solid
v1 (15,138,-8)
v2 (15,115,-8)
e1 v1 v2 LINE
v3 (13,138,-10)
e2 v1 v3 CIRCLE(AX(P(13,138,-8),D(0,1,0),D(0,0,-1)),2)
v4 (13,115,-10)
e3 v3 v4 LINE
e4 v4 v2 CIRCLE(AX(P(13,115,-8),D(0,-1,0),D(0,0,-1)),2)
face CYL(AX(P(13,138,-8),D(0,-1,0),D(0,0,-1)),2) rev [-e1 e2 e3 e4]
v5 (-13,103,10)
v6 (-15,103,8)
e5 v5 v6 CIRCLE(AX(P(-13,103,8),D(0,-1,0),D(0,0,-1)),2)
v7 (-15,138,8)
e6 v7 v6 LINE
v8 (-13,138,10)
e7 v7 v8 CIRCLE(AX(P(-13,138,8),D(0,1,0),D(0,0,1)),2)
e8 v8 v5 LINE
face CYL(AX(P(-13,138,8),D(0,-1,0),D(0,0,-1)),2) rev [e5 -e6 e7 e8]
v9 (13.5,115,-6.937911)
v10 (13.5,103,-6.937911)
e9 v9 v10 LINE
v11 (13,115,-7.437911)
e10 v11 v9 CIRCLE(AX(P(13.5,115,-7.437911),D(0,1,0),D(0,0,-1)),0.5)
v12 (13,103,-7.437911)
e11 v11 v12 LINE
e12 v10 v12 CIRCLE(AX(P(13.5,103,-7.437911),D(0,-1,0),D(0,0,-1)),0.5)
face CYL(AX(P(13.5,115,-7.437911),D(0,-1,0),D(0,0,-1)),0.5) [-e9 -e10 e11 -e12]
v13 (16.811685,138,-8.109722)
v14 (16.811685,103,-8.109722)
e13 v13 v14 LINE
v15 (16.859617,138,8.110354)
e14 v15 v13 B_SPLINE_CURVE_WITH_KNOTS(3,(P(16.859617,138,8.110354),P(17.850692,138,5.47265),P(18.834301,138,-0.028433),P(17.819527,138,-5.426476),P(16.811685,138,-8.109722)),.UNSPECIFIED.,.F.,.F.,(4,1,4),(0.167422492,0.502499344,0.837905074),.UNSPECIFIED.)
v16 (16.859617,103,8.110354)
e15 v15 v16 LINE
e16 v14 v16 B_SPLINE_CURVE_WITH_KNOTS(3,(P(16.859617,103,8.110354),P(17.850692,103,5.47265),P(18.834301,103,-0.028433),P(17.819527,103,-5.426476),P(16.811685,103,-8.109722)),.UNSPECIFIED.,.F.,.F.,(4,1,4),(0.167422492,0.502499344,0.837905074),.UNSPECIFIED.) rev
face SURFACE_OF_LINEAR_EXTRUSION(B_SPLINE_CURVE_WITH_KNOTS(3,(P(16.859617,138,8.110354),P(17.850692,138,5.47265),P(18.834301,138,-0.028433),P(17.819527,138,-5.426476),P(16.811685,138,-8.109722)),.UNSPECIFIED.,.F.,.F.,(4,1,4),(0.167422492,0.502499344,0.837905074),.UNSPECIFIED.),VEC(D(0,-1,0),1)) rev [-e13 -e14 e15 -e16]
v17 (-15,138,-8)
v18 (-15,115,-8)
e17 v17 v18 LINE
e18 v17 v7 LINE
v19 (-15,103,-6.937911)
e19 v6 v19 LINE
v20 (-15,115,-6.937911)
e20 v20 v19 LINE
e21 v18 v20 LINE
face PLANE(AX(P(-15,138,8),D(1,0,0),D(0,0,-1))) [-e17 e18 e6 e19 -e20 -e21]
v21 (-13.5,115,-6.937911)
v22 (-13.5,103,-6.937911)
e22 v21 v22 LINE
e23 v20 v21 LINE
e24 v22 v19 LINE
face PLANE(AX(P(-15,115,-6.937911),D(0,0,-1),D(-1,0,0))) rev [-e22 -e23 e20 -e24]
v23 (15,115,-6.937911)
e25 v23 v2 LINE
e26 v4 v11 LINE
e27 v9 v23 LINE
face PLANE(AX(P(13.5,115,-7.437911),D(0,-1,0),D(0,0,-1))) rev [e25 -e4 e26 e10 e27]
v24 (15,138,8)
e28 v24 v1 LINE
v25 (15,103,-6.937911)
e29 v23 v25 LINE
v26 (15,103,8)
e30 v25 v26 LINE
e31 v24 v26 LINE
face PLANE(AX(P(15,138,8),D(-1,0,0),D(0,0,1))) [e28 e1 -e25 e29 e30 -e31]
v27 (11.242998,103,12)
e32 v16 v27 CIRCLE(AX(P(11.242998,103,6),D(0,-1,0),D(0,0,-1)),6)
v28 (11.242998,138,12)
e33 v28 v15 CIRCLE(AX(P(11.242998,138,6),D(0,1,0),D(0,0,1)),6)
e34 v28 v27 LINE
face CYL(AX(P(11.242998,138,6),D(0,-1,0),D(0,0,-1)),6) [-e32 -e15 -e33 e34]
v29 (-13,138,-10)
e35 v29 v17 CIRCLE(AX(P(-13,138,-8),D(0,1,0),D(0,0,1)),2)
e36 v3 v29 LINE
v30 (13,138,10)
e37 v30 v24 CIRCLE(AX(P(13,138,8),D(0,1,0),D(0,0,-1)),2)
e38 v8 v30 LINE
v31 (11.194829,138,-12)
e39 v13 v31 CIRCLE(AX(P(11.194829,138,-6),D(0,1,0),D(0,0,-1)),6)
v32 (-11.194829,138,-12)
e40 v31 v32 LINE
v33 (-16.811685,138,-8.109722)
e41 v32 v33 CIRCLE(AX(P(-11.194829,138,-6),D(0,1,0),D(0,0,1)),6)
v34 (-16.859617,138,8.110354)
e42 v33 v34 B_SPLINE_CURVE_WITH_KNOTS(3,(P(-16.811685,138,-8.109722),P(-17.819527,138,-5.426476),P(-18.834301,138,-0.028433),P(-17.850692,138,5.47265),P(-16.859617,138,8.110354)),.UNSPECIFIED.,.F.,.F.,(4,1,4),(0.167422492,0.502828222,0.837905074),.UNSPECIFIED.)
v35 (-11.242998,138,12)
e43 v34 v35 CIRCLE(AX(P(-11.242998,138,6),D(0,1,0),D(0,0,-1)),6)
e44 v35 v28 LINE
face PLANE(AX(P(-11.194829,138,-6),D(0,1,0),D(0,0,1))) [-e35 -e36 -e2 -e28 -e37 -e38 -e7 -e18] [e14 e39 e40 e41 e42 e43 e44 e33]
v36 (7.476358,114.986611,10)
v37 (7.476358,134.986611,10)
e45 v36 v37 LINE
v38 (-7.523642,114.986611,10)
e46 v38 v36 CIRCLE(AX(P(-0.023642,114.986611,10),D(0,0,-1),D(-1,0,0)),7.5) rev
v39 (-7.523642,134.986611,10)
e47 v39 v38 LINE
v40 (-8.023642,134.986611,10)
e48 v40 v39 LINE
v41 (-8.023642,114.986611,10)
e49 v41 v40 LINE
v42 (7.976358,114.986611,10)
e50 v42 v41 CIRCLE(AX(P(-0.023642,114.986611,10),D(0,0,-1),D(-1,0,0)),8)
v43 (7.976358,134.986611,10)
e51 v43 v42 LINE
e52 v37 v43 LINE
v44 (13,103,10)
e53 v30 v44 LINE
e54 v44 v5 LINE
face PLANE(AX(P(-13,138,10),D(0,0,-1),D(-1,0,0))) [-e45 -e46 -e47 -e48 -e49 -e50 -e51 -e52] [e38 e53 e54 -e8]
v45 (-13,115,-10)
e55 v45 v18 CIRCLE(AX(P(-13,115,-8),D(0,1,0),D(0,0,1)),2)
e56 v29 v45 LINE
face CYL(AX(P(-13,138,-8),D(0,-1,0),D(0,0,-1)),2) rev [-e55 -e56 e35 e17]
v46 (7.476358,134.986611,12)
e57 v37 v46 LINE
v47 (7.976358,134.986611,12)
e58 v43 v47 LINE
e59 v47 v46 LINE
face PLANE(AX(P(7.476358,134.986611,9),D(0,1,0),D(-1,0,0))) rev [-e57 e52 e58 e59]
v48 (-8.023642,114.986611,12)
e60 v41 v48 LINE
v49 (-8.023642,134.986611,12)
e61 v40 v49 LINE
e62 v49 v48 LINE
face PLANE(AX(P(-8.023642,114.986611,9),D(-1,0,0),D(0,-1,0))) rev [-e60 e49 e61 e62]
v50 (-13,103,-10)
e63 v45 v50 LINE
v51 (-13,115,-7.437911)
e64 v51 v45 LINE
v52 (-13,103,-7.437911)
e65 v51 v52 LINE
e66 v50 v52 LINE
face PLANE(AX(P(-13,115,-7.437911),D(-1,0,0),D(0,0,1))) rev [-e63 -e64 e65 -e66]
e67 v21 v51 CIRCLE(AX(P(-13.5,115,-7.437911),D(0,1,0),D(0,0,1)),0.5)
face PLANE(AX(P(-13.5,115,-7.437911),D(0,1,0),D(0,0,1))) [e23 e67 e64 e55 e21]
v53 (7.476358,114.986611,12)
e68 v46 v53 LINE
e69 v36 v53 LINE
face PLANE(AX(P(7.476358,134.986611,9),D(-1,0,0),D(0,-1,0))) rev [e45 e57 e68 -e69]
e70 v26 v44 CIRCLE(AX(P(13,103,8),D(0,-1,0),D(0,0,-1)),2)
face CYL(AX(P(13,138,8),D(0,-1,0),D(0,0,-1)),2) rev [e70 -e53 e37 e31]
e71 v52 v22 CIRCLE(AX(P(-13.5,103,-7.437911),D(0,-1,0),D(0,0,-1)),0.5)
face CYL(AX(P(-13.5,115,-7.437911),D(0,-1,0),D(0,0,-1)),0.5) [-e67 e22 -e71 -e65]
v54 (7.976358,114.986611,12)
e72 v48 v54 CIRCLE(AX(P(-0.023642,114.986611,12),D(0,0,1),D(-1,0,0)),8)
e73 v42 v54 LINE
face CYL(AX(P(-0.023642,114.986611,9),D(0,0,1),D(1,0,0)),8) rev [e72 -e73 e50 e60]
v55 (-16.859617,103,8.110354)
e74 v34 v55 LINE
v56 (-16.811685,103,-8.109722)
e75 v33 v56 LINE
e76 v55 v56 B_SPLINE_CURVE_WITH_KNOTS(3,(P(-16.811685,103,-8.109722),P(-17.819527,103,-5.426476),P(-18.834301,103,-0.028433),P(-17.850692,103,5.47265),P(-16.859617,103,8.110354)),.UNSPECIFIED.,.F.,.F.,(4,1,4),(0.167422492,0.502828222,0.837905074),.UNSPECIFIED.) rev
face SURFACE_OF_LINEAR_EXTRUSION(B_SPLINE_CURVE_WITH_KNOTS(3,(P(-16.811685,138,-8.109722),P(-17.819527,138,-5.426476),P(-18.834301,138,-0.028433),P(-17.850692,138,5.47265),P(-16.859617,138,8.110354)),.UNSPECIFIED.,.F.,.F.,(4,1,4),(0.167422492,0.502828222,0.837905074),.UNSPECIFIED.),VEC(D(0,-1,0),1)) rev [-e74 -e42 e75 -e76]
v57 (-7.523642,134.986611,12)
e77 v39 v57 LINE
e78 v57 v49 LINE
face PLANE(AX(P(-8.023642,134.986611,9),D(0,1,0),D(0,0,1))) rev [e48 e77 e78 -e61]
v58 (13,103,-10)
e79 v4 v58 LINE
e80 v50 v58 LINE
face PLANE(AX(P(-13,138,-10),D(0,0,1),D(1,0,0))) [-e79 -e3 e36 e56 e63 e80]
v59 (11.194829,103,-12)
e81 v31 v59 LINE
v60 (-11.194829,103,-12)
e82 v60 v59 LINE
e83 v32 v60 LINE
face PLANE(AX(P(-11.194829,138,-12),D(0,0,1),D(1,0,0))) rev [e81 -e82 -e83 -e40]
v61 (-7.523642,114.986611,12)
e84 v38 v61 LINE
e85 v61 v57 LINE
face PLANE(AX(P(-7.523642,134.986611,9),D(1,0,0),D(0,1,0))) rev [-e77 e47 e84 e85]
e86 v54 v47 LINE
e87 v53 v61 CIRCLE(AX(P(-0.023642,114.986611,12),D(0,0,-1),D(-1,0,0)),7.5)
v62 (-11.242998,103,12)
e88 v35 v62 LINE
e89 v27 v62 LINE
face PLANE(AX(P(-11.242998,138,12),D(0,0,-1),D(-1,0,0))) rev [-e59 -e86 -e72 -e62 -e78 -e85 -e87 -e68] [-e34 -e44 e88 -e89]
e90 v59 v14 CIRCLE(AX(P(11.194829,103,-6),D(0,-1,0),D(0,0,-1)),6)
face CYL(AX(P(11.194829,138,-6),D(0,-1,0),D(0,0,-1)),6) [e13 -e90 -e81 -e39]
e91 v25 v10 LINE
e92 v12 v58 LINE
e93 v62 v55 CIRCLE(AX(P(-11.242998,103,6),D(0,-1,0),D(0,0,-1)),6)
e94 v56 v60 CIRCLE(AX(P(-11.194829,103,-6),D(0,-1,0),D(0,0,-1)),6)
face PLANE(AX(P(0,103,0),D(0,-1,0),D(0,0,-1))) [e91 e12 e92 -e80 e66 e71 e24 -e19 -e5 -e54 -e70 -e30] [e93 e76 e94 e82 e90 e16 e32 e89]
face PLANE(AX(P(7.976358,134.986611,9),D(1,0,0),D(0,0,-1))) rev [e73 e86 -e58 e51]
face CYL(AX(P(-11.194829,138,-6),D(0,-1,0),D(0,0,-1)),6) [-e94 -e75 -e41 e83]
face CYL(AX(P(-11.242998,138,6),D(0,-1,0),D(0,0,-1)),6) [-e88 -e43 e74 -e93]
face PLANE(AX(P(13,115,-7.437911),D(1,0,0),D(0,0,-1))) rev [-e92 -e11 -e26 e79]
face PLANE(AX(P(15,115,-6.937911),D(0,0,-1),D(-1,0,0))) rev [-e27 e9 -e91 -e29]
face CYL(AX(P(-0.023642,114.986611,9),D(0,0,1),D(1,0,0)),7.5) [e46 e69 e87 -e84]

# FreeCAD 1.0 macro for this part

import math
import FreeCAD as App
import Part
import Sketcher

V = App.Vector


def add_polygon(sketch, points):
    """Adds a closed chain of lines whose ends are joined by coincident constraints."""
    first, n = sketch.GeometryCount, len(points)
    for a, b in zip(points, points[1:] + points[:1]):
        sketch.addGeometry(Part.LineSegment(App.Vector(*a, 0), App.Vector(*b, 0)), False)
    for i in range(n):
        sketch.addConstraint(Sketcher.Constraint("Coincident", first + i, 2, first + (i + 1) % n, 1))

doc = App.newDocument("Part")
body = doc.addObject("PartDesign::Body", "Body")

sketch1 = doc.addObject("Sketcher::SketchObject", "Sketch")
body.addObject(sketch1)
sketch1.AttachmentSupport = (doc.XZ_Plane, [""])
sketch1.MapMode = "FlatFace"
sketch1.AttachmentOffset = App.Placement(V(0, 0, -58), App.Rotation())
sketch1.addGeometry(Part.LineSegment(V(-11.242998, 12, 0), V(11.242998, 12, 0)), False)
sketch1.addGeometry(Part.ArcOfCircle(Part.Circle(V(11.242998, 6, 0), V(0, 0, 1), 6), math.radians(20.592897), math.radians(90)), False)
sketch1.addGeometry(Part.BSplineCurve([V(16.859617, 8.110354, 0), V(17.850692, 5.47265, 0), V(18.834301, -0.028433, 0), V(17.819527, -5.426476, 0), V(16.811685, -8.109722, 0)], [4, 1, 4], [0.167422492, 0.502499344, 0.837905074], False, 3, [1, 1, 1, 1, 1], False), False)
sketch1.addGeometry(Part.ArcOfCircle(Part.Circle(V(11.194829, -6, 0), V(0, 0, 1), 6), math.radians(-90), math.radians(-20.586452)), False)
sketch1.addGeometry(Part.LineSegment(V(11.194829, -12, 0), V(-11.194829, -12, 0)), False)
sketch1.addGeometry(Part.ArcOfCircle(Part.Circle(V(-11.194829, -6, 0), V(0, 0, 1), 6), math.radians(-159.413548), math.radians(-90)), False)
sketch1.addGeometry(Part.BSplineCurve([V(-16.859617, 8.110354, 0), V(-17.850692, 5.47265, 0), V(-18.834301, -0.028433, 0), V(-17.819527, -5.426476, 0), V(-16.811685, -8.109722, 0)], [4, 1, 4], [0.167422492, 0.502499344, 0.837905074], False, 3, [1, 1, 1, 1, 1], False), False)
sketch1.addGeometry(Part.ArcOfCircle(Part.Circle(V(-11.242998, 6, 0), V(0, 0, 1), 6), math.radians(90), math.radians(159.407103)), False)
sketch1.addGeometry(Part.LineSegment(V(13, 10, 0), V(-13, 10, 0)), False)
sketch1.addGeometry(Part.ArcOfCircle(Part.Circle(V(-13, 8, 0), V(0, 0, 1), 2), math.radians(90), math.radians(180)), False)
sketch1.addGeometry(Part.LineSegment(V(-15, 8, 0), V(-15, -8, 0)), False)
sketch1.addGeometry(Part.ArcOfCircle(Part.Circle(V(-13, -8, 0), V(0, 0, 1), 2), math.radians(-180), math.radians(-90)), False)
sketch1.addGeometry(Part.LineSegment(V(-13, -10, 0), V(13, -10, 0)), False)
sketch1.addGeometry(Part.ArcOfCircle(Part.Circle(V(13, -8, 0), V(0, 0, 1), 2), math.radians(-90), math.radians(0)), False)
sketch1.addGeometry(Part.LineSegment(V(15, -8, 0), V(15, 8, 0)), False)
sketch1.addGeometry(Part.ArcOfCircle(Part.Circle(V(13, 8, 0), V(0, 0, 1), 2), math.radians(0), math.radians(90)), False)
sketch1.addConstraint(Sketcher.Constraint("Block", 2))
sketch1.addConstraint(Sketcher.Constraint("Block", 6))
sketch1.addConstraint(Sketcher.Constraint("Tangent", 0, 2, 1, 2))
sketch1.addConstraint(Sketcher.Constraint("Coincident", 1, 1, 2, 1))
sketch1.addConstraint(Sketcher.Constraint("Coincident", 2, 2, 3, 2))
sketch1.addConstraint(Sketcher.Constraint("Tangent", 3, 1, 4, 1))
sketch1.addConstraint(Sketcher.Constraint("Tangent", 4, 2, 5, 2))
sketch1.addConstraint(Sketcher.Constraint("Coincident", 5, 1, 6, 2))
sketch1.addConstraint(Sketcher.Constraint("Coincident", 6, 1, 7, 2))
sketch1.addConstraint(Sketcher.Constraint("Tangent", 7, 1, 0, 1))
sketch1.addConstraint(Sketcher.Constraint("Tangent", 8, 2, 9, 1))
sketch1.addConstraint(Sketcher.Constraint("Tangent", 9, 2, 10, 1))
sketch1.addConstraint(Sketcher.Constraint("Tangent", 10, 2, 11, 1))
sketch1.addConstraint(Sketcher.Constraint("Tangent", 11, 2, 12, 1))
sketch1.addConstraint(Sketcher.Constraint("Tangent", 12, 2, 13, 1))
sketch1.addConstraint(Sketcher.Constraint("Tangent", 13, 2, 14, 1))
sketch1.addConstraint(Sketcher.Constraint("Tangent", 14, 2, 15, 1))
sketch1.addConstraint(Sketcher.Constraint("Tangent", 15, 2, 8, 1))
sketch1.addConstraint(Sketcher.Constraint("Horizontal", 0))
sketch1.addConstraint(Sketcher.Constraint("Horizontal", 4))
sketch1.addConstraint(Sketcher.Constraint("Horizontal", 8))
sketch1.addConstraint(Sketcher.Constraint("Vertical", 10))
sketch1.addConstraint(Sketcher.Constraint("Horizontal", 12))
sketch1.addConstraint(Sketcher.Constraint("Vertical", 14))
sketch1.addConstraint(Sketcher.Constraint("Equal", 1, 3))
sketch1.addConstraint(Sketcher.Constraint("Equal", 3, 5))
sketch1.addConstraint(Sketcher.Constraint("Equal", 5, 7))
sketch1.addConstraint(Sketcher.Constraint("Equal", 9, 11))
sketch1.addConstraint(Sketcher.Constraint("Equal", 11, 13))
sketch1.addConstraint(Sketcher.Constraint("Equal", 13, 15))
sketch1.addConstraint(Sketcher.Constraint("Symmetric", 9, 3, 13, 3, -1, 1))
sketch1.addConstraint(Sketcher.Constraint("Radius", 1, 6.0))
sketch1.addConstraint(Sketcher.Constraint("Radius", 9, 2.0))
sketch1.addConstraint(Sketcher.Constraint("DistanceX", 8, 2, 8, 1, 26.0))
sketch1.addConstraint(Sketcher.Constraint("DistanceY", 10, 2, 10, 1, 16.0))
sketch1.addConstraint(Sketcher.Constraint("DistanceY", -1, 1, 1, 3, 6.0))
sketch1.addConstraint(Sketcher.Constraint("DistanceY", 3, 3, -1, 1, 6.0))
pad1 = doc.addObject("PartDesign::Pad", "Pad")
body.addObject(pad1)
pad1.Profile = sketch1
pad1.Length = 80
pad1.Reversed = True

sketch2 = doc.addObject("Sketcher::SketchObject", "Sketch001")
body.addObject(sketch2)
sketch2.AttachmentSupport = (doc.XZ_Plane, [""])
sketch2.MapMode = "FlatFace"
sketch2.AttachmentOffset = App.Placement(V(0, 0, -58), App.Rotation())
sketch2.addGeometry(Part.LineSegment(V(15, -10, 0), V(13, -10, 0)), False)
sketch2.addGeometry(Part.LineSegment(V(13, -10, 0), V(13, -7.437911, 0)), False)
sketch2.addGeometry(Part.ArcOfCircle(Part.Circle(V(13.5, -7.437911, 0), V(0, 0, 1), 0.5), math.radians(90), math.radians(180)), False)
sketch2.addGeometry(Part.LineSegment(V(13.5, -6.937911, 0), V(15, -6.937911, 0)), False)
sketch2.addGeometry(Part.LineSegment(V(15, -6.937911, 0), V(15, -10, 0)), False)
sketch2.addGeometry(Part.LineSegment(V(-13, -7.437911, 0), V(-13, -10, 0)), False)
sketch2.addGeometry(Part.LineSegment(V(-13, -10, 0), V(-15, -10, 0)), False)
sketch2.addGeometry(Part.LineSegment(V(-15, -10, 0), V(-15, -6.937911, 0)), False)
sketch2.addGeometry(Part.LineSegment(V(-15, -6.937911, 0), V(-13.5, -6.937911, 0)), False)
sketch2.addGeometry(Part.ArcOfCircle(Part.Circle(V(-13.5, -7.437911, 0), V(0, 0, 1), 0.5), math.radians(0), math.radians(90)), False)
sketch2.addConstraint(Sketcher.Constraint("Coincident", 0, 2, 1, 1))
sketch2.addConstraint(Sketcher.Constraint("Tangent", 1, 2, 2, 2))
sketch2.addConstraint(Sketcher.Constraint("Tangent", 2, 1, 3, 1))
sketch2.addConstraint(Sketcher.Constraint("Coincident", 3, 2, 4, 1))
sketch2.addConstraint(Sketcher.Constraint("Coincident", 4, 2, 0, 1))
sketch2.addConstraint(Sketcher.Constraint("Coincident", 5, 2, 6, 1))
sketch2.addConstraint(Sketcher.Constraint("Coincident", 6, 2, 7, 1))
sketch2.addConstraint(Sketcher.Constraint("Coincident", 7, 2, 8, 1))
sketch2.addConstraint(Sketcher.Constraint("Tangent", 8, 2, 9, 2))
sketch2.addConstraint(Sketcher.Constraint("Tangent", 9, 1, 5, 1))
sketch2.addConstraint(Sketcher.Constraint("Horizontal", 0))
sketch2.addConstraint(Sketcher.Constraint("Vertical", 1))
sketch2.addConstraint(Sketcher.Constraint("Horizontal", 3))
sketch2.addConstraint(Sketcher.Constraint("Vertical", 4))
sketch2.addConstraint(Sketcher.Constraint("Vertical", 5))
sketch2.addConstraint(Sketcher.Constraint("Horizontal", 6))
sketch2.addConstraint(Sketcher.Constraint("Vertical", 7))
sketch2.addConstraint(Sketcher.Constraint("Horizontal", 8))
sketch2.addConstraint(Sketcher.Constraint("Equal", 2, 9))
sketch2.addConstraint(Sketcher.Constraint("Symmetric", 2, 3, 9, 3, -2))
sketch2.addConstraint(Sketcher.Constraint("Symmetric", 4, 2, 6, 2, -2))
sketch2.addConstraint(Sketcher.Constraint("Radius", 2, 0.5))
sketch2.addConstraint(Sketcher.Constraint("DistanceX", 0, 2, 0, 1, 2.0))
sketch2.addConstraint(Sketcher.Constraint("DistanceX", -1, 1, 0, 2, 13.0))
sketch2.addConstraint(Sketcher.Constraint("DistanceY", 0, 2, -1, 1, 10.0))
sketch2.addConstraint(Sketcher.Constraint("DistanceY", 1, 1, 1, 2, 2.562089))
pad2 = doc.addObject("PartDesign::Pad", "Pad001")
body.addObject(pad2)
pad2.Profile = sketch2
pad2.Length = 57
pad2.Reversed = True

sketch3 = doc.addObject("Sketcher::SketchObject", "Sketch002")
body.addObject(sketch3)
sketch3.AttachmentSupport = (doc.XY_Plane, [""])
sketch3.MapMode = "FlatFace"
sketch3.AttachmentOffset = App.Placement(V(0, 0, 12), App.Rotation())
sketch3.addGeometry(Part.LineSegment(V(7.476358, 134.986611, 0), V(7.476358, 114.986611, 0)), False)
sketch3.addGeometry(Part.ArcOfCircle(Part.Circle(V(-0.023642, 114.986611, 0), V(0, 0, 1), 7.5), math.radians(180), math.radians(360)), False)
sketch3.addGeometry(Part.LineSegment(V(-7.523642, 114.986611, 0), V(-7.523642, 134.986611, 0)), False)
sketch3.addGeometry(Part.LineSegment(V(-7.523642, 134.986611, 0), V(-8.023642, 134.986611, 0)), False)
sketch3.addGeometry(Part.LineSegment(V(-8.023642, 134.986611, 0), V(-8.023642, 114.986611, 0)), False)
sketch3.addGeometry(Part.ArcOfCircle(Part.Circle(V(-0.023642, 114.986611, 0), V(0, 0, 1), 8), math.radians(180), math.radians(360)), False)
sketch3.addGeometry(Part.LineSegment(V(7.976358, 114.986611, 0), V(7.976358, 134.986611, 0)), False)
sketch3.addGeometry(Part.LineSegment(V(7.976358, 134.986611, 0), V(7.476358, 134.986611, 0)), False)
sketch3.addConstraint(Sketcher.Constraint("Tangent", 0, 2, 1, 2))
sketch3.addConstraint(Sketcher.Constraint("Tangent", 1, 1, 2, 1))
sketch3.addConstraint(Sketcher.Constraint("Coincident", 2, 2, 3, 1))
sketch3.addConstraint(Sketcher.Constraint("Coincident", 3, 2, 4, 1))
sketch3.addConstraint(Sketcher.Constraint("Tangent", 4, 2, 5, 1))
sketch3.addConstraint(Sketcher.Constraint("Tangent", 5, 2, 6, 1))
sketch3.addConstraint(Sketcher.Constraint("Coincident", 6, 2, 7, 1))
sketch3.addConstraint(Sketcher.Constraint("Coincident", 7, 2, 0, 1))
sketch3.addConstraint(Sketcher.Constraint("Vertical", 0))
sketch3.addConstraint(Sketcher.Constraint("Vertical", 2))
sketch3.addConstraint(Sketcher.Constraint("Horizontal", 3))
sketch3.addConstraint(Sketcher.Constraint("Vertical", 4))
sketch3.addConstraint(Sketcher.Constraint("Vertical", 6))
sketch3.addConstraint(Sketcher.Constraint("Horizontal", 7))
sketch3.addConstraint(Sketcher.Constraint("Coincident", 5, 3, 1, 3))
sketch3.addConstraint(Sketcher.Constraint("Horizontal", 3, 2, 6, 2))
sketch3.addConstraint(Sketcher.Constraint("Radius", 5, 8.0))
sketch3.addConstraint(Sketcher.Constraint("Radius", 1, 7.5))
sketch3.addConstraint(Sketcher.Constraint("DistanceY", 0, 2, 0, 1, 20.0))
sketch3.addConstraint(Sketcher.Constraint("DistanceY", -1, 1, 1, 3, 114.986611))
sketch3.addConstraint(Sketcher.Constraint("DistanceX", 1, 3, -1, 1, 0.023642))
pocket1 = doc.addObject("PartDesign::Pocket", "Pocket")
body.addObject(pocket1)
pocket1.Profile = sketch3
pocket1.Length = 3

sketch4 = doc.addObject("Sketcher::SketchObject", "Sketch003")
body.addObject(sketch4)
sketch4.AttachmentSupport = (doc.XZ_Plane, [""])
sketch4.MapMode = "FlatFace"
sketch4.AttachmentOffset = App.Placement(V(0, 0, -58), App.Rotation())
add_polygon(sketch4, [(-19.60043, -24.336256), (-19.60043, 12.388247), (26.999425, 12.388247), (26.999425, -24.336256)])
sketch4.addConstraint(Sketcher.Constraint("Vertical", 0))
sketch4.addConstraint(Sketcher.Constraint("Horizontal", 1))
sketch4.addConstraint(Sketcher.Constraint("Vertical", 2))
sketch4.addConstraint(Sketcher.Constraint("Horizontal", 3))
sketch4.addConstraint(Sketcher.Constraint("DistanceX", 1, 1, 1, 2, 46.599854))
sketch4.addConstraint(Sketcher.Constraint("DistanceY", 0, 1, 0, 2, 36.724503))
sketch4.addConstraint(Sketcher.Constraint("DistanceX", 0, 2, -1, 1, 19.60043))
sketch4.addConstraint(Sketcher.Constraint("DistanceY", -1, 1, 0, 2, 12.388247))
pocket2 = doc.addObject("PartDesign::Pocket", "Pocket001")
body.addObject(pocket2)
pocket2.Profile = sketch4
pocket2.Length = 45

doc.recompute()
